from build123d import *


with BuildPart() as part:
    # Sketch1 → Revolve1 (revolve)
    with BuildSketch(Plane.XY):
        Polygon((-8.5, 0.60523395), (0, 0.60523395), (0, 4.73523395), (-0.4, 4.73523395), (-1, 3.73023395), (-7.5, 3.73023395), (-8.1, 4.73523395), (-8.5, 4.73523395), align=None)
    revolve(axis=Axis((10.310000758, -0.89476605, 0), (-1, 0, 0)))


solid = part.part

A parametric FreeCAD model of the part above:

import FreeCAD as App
import Part
import Sketcher
from FreeCAD import Vector

doc = App.newDocument("Part")
body = doc.addObject("PartDesign::Body", "Body")

# Sketch on XY plane
sketch1 = doc.addObject("Sketcher::SketchObject", "Sketch")
body.addObject(sketch1)
sketch1.AttachmentSupport = (doc.XY_Plane, [""])
sketch1.MapMode = "FlatFace"
sketch1.addGeometry(Part.LineSegment(Vector(-8.5, 0.61, 0), Vector(0, 0.61, 0)), False)
sketch1.addGeometry(Part.LineSegment(Vector(0, 0.61, 0), Vector(0, 4.74, 0)), False)
sketch1.addGeometry(Part.LineSegment(Vector(0, 4.74, 0), Vector(-0.4, 4.74, 0)), False)
sketch1.addGeometry(Part.LineSegment(Vector(-0.4, 4.74, 0), Vector(-1, 3.73, 0)), False)
sketch1.addGeometry(Part.LineSegment(Vector(-1, 3.73, 0), Vector(-7.5, 3.73, 0)), False)
sketch1.addGeometry(Part.LineSegment(Vector(-7.5, 3.73, 0), Vector(-8.1, 4.74, 0)), False)
sketch1.addGeometry(Part.LineSegment(Vector(-8.1, 4.74, 0), Vector(-8.5, 4.74, 0)), False)
sketch1.addGeometry(Part.LineSegment(Vector(-8.5, 4.74, 0), Vector(-8.5, 0.61, 0)), False)
sketch1.addGeometry(Part.LineSegment(Vector(0, -0.89, 0), Vector(-8.5, -0.89, 0)), True)  # axis
sketch1.addConstraint(Sketcher.Constraint("Coincident", 0, 2, 1, 1))
sketch1.addConstraint(Sketcher.Constraint("Coincident", 1, 2, 2, 1))
sketch1.addConstraint(Sketcher.Constraint("Coincident", 2, 2, 3, 1))
sketch1.addConstraint(Sketcher.Constraint("Coincident", 3, 2, 4, 1))
sketch1.addConstraint(Sketcher.Constraint("Coincident", 4, 2, 5, 1))
sketch1.addConstraint(Sketcher.Constraint("Coincident", 5, 2, 6, 1))
sketch1.addConstraint(Sketcher.Constraint("Coincident", 6, 2, 7, 1))
sketch1.addConstraint(Sketcher.Constraint("Coincident", 7, 2, 0, 1))
sketch1.addConstraint(Sketcher.Constraint("Horizontal", 0))
sketch1.addConstraint(Sketcher.Constraint("Vertical", 1))
sketch1.addConstraint(Sketcher.Constraint("Horizontal", 2))
sketch1.addConstraint(Sketcher.Constraint("Horizontal", 4))
sketch1.addConstraint(Sketcher.Constraint("Horizontal", 6))
sketch1.addConstraint(Sketcher.Constraint("Vertical", 7))
sketch1.addConstraint(Sketcher.Constraint("Horizontal", 8))
sketch1.addConstraint(Sketcher.Constraint("PointOnObject", 0, 2, -2))
sketch1.addConstraint(Sketcher.Constraint("PointOnObject", 8, 1, -2))
sketch1.addConstraint(Sketcher.Constraint("Horizontal", 2, 2, 5, 2))
sketch1.addConstraint(Sketcher.Constraint("Vertical", 7, 2, 8, 2))
sketch1.addConstraint(Sketcher.Constraint("Equal", 2, 6))
sketch1.addConstraint(Sketcher.Constraint("Equal", 3, 5))
sketch1.addConstraint(Sketcher.Constraint("DistanceX", 0, 1, 0, 2, 8.5))
sketch1.addConstraint(Sketcher.Constraint("DistanceX", 2, 2, 2, 1, 0.4))
sketch1.addConstraint(Sketcher.Constraint("DistanceX", 4, 2, 4, 1, 6.5))
sketch1.addConstraint(Sketcher.Constraint("DistanceY", 1, 1, 1, 2, 4.13))
sketch1.addConstraint(Sketcher.Constraint("DistanceY", 8, 1, 0, 2, 1.5))
sketch1.addConstraint(Sketcher.Constraint("DistanceY", 3, 2, 2, 2, 1.005))
sketch1.addConstraint(Sketcher.Constraint("DistanceY", -1, 1, 0, 2, 0.605234))
revolution = doc.addObject("PartDesign::Revolution", "Revolution")
body.addObject(revolution)
revolution.Profile = sketch1
revolution.ReferenceAxis = (sketch1, ["Axis0"])
revolution.Angle = 360

doc.recompute()
